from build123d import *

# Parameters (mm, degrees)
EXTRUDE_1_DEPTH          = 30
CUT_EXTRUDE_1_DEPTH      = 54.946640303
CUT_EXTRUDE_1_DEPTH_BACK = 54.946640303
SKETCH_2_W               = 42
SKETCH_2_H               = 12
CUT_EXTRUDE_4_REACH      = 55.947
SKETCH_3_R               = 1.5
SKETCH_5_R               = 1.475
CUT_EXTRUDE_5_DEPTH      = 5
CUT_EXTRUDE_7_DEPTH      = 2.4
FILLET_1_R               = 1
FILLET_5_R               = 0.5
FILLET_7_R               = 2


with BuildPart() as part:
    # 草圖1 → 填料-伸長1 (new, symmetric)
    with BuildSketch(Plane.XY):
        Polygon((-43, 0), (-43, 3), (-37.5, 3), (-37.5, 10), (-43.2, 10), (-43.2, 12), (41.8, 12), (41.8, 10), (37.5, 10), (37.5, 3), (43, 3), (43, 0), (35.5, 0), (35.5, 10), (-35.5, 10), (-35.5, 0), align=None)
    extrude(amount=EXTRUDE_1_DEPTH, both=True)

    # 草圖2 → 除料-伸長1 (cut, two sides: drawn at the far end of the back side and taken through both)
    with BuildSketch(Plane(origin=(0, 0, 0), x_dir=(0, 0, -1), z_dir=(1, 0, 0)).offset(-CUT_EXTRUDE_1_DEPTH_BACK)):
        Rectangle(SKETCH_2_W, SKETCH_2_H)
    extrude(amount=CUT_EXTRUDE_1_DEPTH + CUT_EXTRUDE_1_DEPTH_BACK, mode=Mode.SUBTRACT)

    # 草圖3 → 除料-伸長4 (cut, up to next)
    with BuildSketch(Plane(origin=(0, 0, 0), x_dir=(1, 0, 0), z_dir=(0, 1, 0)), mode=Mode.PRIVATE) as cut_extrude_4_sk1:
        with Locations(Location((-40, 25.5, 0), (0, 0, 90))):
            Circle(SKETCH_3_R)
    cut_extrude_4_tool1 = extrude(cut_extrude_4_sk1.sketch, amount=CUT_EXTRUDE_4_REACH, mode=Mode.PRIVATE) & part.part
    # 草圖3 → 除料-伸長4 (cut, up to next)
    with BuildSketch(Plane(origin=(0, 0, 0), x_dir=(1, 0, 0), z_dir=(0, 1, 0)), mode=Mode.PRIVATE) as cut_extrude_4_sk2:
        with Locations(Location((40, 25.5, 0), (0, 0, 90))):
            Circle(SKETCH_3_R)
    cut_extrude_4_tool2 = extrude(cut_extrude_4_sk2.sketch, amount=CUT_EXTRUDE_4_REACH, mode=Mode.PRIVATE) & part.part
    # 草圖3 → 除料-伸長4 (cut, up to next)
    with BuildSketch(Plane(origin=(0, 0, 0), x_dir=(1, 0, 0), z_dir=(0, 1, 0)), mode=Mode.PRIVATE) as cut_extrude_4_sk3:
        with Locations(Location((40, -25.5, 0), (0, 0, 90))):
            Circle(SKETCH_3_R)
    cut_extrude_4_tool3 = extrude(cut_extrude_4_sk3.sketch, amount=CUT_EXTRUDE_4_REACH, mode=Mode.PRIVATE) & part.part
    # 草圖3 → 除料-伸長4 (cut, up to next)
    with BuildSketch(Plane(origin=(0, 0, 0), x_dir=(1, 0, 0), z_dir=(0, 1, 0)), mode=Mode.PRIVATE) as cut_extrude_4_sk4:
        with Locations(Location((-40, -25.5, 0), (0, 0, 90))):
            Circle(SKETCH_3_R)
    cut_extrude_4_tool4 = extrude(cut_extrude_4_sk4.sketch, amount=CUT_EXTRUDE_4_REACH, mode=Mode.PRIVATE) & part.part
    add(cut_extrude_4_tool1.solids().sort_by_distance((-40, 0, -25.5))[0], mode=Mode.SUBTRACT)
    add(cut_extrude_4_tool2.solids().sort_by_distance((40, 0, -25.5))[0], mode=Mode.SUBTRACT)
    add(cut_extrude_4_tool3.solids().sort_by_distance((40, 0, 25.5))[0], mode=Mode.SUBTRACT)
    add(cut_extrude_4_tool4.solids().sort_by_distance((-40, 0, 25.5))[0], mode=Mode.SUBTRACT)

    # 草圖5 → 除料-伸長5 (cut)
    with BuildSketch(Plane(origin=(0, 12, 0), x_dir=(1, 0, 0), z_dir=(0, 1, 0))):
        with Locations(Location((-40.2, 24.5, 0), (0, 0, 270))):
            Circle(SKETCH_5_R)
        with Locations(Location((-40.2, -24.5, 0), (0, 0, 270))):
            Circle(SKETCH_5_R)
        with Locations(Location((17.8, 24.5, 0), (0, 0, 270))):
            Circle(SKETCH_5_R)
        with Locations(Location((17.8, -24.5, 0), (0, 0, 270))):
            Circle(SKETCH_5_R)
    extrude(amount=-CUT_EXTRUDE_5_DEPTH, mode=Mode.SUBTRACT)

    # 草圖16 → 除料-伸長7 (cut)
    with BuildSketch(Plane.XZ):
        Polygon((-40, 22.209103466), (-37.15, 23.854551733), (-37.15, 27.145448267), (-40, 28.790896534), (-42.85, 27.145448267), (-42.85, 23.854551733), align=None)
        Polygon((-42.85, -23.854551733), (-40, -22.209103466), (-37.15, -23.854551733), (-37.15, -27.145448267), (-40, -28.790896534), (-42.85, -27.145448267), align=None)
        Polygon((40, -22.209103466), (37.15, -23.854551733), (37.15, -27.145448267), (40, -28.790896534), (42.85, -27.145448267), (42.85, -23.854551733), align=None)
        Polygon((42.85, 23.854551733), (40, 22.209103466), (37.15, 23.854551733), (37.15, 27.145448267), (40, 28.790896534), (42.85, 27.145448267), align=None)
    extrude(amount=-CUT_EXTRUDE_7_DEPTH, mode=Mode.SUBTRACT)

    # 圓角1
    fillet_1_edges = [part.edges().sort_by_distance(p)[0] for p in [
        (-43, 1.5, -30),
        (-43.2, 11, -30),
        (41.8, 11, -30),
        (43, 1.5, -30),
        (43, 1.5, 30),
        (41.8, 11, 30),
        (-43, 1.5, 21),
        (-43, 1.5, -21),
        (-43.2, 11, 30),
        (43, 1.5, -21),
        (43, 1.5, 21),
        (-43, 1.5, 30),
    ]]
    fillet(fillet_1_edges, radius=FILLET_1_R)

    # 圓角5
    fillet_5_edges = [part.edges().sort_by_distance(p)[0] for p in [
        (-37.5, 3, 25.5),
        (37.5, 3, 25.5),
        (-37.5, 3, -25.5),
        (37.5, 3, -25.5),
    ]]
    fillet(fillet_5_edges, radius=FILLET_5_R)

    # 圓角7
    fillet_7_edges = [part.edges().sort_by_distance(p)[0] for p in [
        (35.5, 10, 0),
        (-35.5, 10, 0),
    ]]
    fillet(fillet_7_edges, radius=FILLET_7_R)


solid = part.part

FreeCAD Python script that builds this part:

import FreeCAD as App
import Part
import Sketcher

V = App.Vector
Q = App.Units.Quantity


def edges_at(feature, points):
    """Names of the edges that pass closest to the given points."""
    edges = feature.Shape.Edges
    near = lambda p: min(range(len(edges)), key=lambda i: edges[i].distToShape(Part.Vertex(*p))[0])
    return sorted({f"Edge{near(p) + 1}" for p in points})


def add_polygon(sketch, points):
    """Adds a closed chain of lines whose ends are joined by coincident constraints."""
    first, n = sketch.GeometryCount, len(points)
    for a, b in zip(points, points[1:] + points[:1]):
        sketch.addGeometry(Part.LineSegment(App.Vector(*a, 0), App.Vector(*b, 0)), False)
    for i in range(n):
        sketch.addConstraint(Sketcher.Constraint("Coincident", first + i, 2, first + (i + 1) % n, 1))

doc = App.newDocument("Part")
params = doc.addObject("Spreadsheet::Sheet", "Params")
for row, (alias, value) in enumerate([
    ("sketch1_width", "71 mm"),
    ("sketch1_width2", "85 mm"),
    ("sketch1_height", "3 mm"),
    ("sketch1_height2", "10 mm"),
    ("sketch1_height3", "2 mm"),
    ("pad1_length", "60 mm"),
    ("sketch2_width", "12 mm"),
    ("sketch2_height", "42 mm"),
    ("sketch3_diameter", "3 mm"),
    ("sketch4_diameter", "3 mm"),
    ("sketch5_diameter", "3 mm"),
    ("sketch6_diameter", "3 mm"),
    ("sketch7_diameter", "2.95 mm"),
    ("pocket6_length", "5 mm"),
    ("pocket7_length", "2.4 mm"),
    ("fillet_radius", "1 mm"),
    ("fillet2_radius", "0.5 mm"),
    ("fillet3_radius", "2 mm"),
], start=1):
    params.set(f"A{row}", alias)
    params.set(f"B{row}", "=" + value)
    params.setAlias(f"B{row}", alias)

body = doc.addObject("PartDesign::Body", "Body")

# Sketch on XY plane
sketch1 = body.newObject("Sketcher::SketchObject", "Sketch")
sketch1.AttachmentSupport = (doc.getObject("XY_Plane"), [""])
sketch1.MapMode = "FlatFace"
add_polygon(sketch1, [(-43, 3), (-43, 0), (-35.5, 0), (-35.5, 10), (35.5, 10), (35.5, 0), (43, 0), (43, 3), (37.5, 3), (37.5, 10), (41.8, 10), (41.8, 12), (-43.2, 12), (-43.2, 10), (-37.5, 10), (-37.5, 3)])  # lines 0-15
sketch1.addConstraint([
    Sketcher.Constraint("Vertical", 0),
    Sketcher.Constraint("Horizontal", 1),
    Sketcher.Constraint("Vertical", 2),
    Sketcher.Constraint("Horizontal", 3),
    Sketcher.Constraint("Vertical", 4),
    Sketcher.Constraint("Horizontal", 5),
    Sketcher.Constraint("Vertical", 6),
    Sketcher.Constraint("Horizontal", 7),
    Sketcher.Constraint("Vertical", 8),
    Sketcher.Constraint("Horizontal", 9),
    Sketcher.Constraint("Vertical", 10),
    Sketcher.Constraint("Horizontal", 11),
    Sketcher.Constraint("Vertical", 12),
    Sketcher.Constraint("Horizontal", 13),
    Sketcher.Constraint("Vertical", 14),
    Sketcher.Constraint("Horizontal", 15),
    Sketcher.Constraint("Symmetric", 1, 2, 4, 2, -1, 1),
    Sketcher.Constraint("Symmetric", 0, 2, 5, 2, -2),
    Sketcher.Constraint("Symmetric", 8, 2, 13, 2, -2),
    Sketcher.Constraint("Horizontal", 3, 2, 8, 2),
    Sketcher.Constraint("Horizontal", 7, 2, 14, 2),
    Sketcher.Constraint("DistanceX", 3, 1, 3, 2, Q("71 mm")),
    Sketcher.Constraint("DistanceX", 11, 2, 11, 1, Q("85 mm")),
    Sketcher.Constraint("DistanceY", 0, 2, 0, 1, Q("3 mm")),
    Sketcher.Constraint("DistanceY", 2, 1, 2, 2, Q("10 mm")),
    Sketcher.Constraint("DistanceY", 10, 1, 10, 2, Q("2 mm")),
    Sketcher.Constraint("DistanceX", 1, 1, 1, 2, Q("7.5 mm")),
    Sketcher.Constraint("DistanceX", 7, 2, 7, 1, Q("5.5 mm")),
    Sketcher.Constraint("DistanceX", 9, 1, 9, 2, Q("4.3 mm")),
])
sketch1.setExpression("Constraints[37]", "Params.sketch1_width")
sketch1.setExpression("Constraints[38]", "Params.sketch1_width2")
sketch1.setExpression("Constraints[39]", "Params.sketch1_height")
sketch1.setExpression("Constraints[40]", "Params.sketch1_height2")
sketch1.setExpression("Constraints[41]", "Params.sketch1_height3")
pad1 = body.newObject("PartDesign::Pad", "Pad")
pad1.Profile = sketch1
pad1.setExpression("Length", "Params.pad1_length")
pad1.Midplane = True

# Sketch on YZ plane
sketch2 = body.newObject("Sketcher::SketchObject", "Sketch001")
sketch2.AttachmentSupport = (doc.getObject("YZ_Plane"), [""])
sketch2.MapMode = "FlatFace"
add_polygon(sketch2, [(6, 21), (-6, 21), (-6, -21), (6, -21)])  # lines 0-3
sketch2.addConstraint([
    Sketcher.Constraint("Horizontal", 0),
    Sketcher.Constraint("Vertical", 1),
    Sketcher.Constraint("Horizontal", 2),
    Sketcher.Constraint("Vertical", 3),
    Sketcher.Constraint("Symmetric", 0, 2, 2, 2, -1, 1),
    Sketcher.Constraint("DistanceX", 0, 2, 0, 1, Q("12 mm")),
    Sketcher.Constraint("DistanceY", 1, 2, 1, 1, Q("42 mm")),
])
sketch2.setExpression("Constraints[9]", "Params.sketch2_width")
sketch2.setExpression("Constraints[10]", "Params.sketch2_height")
pocket1 = body.newObject("PartDesign::Pocket", "Pocket")
pocket1.Profile = sketch2
pocket1.Type = "ThroughAll"
pocket1.Midplane = True

# Sketch on XZ plane
sketch3 = body.newObject("Sketcher::SketchObject", "Sketch002")
sketch3.AttachmentSupport = (doc.getObject("XZ_Plane"), [""])
sketch3.MapMode = "FlatFace"
sketch3.addGeometry(Part.Circle(V(-40, -25.5, 0), V(0, 0, 1), 1.5), False)
sketch3.addConstraint([
    Sketcher.Constraint("Diameter", 0, Q("3 mm")),
    Sketcher.Constraint("DistanceX", 0, 3, -1, 1, Q("40 mm")),
    Sketcher.Constraint("DistanceY", 0, 3, -1, 1, Q("25.5 mm")),
])
sketch3.setExpression("Constraints[0]", "Params.sketch3_diameter")
pocket2 = body.newObject("PartDesign::Pocket", "Pocket001")
pocket2.Profile = sketch3
pocket2.Type = "UpToFirst"

# Sketch on XZ plane
sketch4 = body.newObject("Sketcher::SketchObject", "Sketch003")
sketch4.AttachmentSupport = (doc.getObject("XZ_Plane"), [""])
sketch4.MapMode = "FlatFace"
sketch4.addGeometry(Part.Circle(V(40, -25.5, 0), V(0, 0, 1), 1.5), False)
sketch4.addConstraint([
    Sketcher.Constraint("Diameter", 0, Q("3 mm")),
    Sketcher.Constraint("DistanceX", -1, 1, 0, 3, Q("40 mm")),
    Sketcher.Constraint("DistanceY", 0, 3, -1, 1, Q("25.5 mm")),
])
sketch4.setExpression("Constraints[0]", "Params.sketch4_diameter")
pocket3 = body.newObject("PartDesign::Pocket", "Pocket002")
pocket3.Profile = sketch4
pocket3.Type = "UpToFirst"

# Sketch on XZ plane
sketch5 = body.newObject("Sketcher::SketchObject", "Sketch004")
sketch5.AttachmentSupport = (doc.getObject("XZ_Plane"), [""])
sketch5.MapMode = "FlatFace"
sketch5.addGeometry(Part.Circle(V(40, 25.5, 0), V(0, 0, 1), 1.5), False)
sketch5.addConstraint([
    Sketcher.Constraint("Diameter", 0, Q("3 mm")),
    Sketcher.Constraint("DistanceX", -1, 1, 0, 3, Q("40 mm")),
    Sketcher.Constraint("DistanceY", -1, 1, 0, 3, Q("25.5 mm")),
])
sketch5.setExpression("Constraints[0]", "Params.sketch5_diameter")
pocket4 = body.newObject("PartDesign::Pocket", "Pocket003")
pocket4.Profile = sketch5
pocket4.Type = "UpToFirst"

# Sketch on XZ plane
sketch6 = body.newObject("Sketcher::SketchObject", "Sketch005")
sketch6.AttachmentSupport = (doc.getObject("XZ_Plane"), [""])
sketch6.MapMode = "FlatFace"
sketch6.addGeometry(Part.Circle(V(-40, 25.5, 0), V(0, 0, 1), 1.5), False)
sketch6.addConstraint([
    Sketcher.Constraint("Diameter", 0, Q("3 mm")),
    Sketcher.Constraint("DistanceX", 0, 3, -1, 1, Q("40 mm")),
    Sketcher.Constraint("DistanceY", -1, 1, 0, 3, Q("25.5 mm")),
])
sketch6.setExpression("Constraints[0]", "Params.sketch6_diameter")
pocket5 = body.newObject("PartDesign::Pocket", "Pocket004")
pocket5.Profile = sketch6
pocket5.Type = "UpToFirst"

# Sketch on XZ plane
sketch7 = body.newObject("Sketcher::SketchObject", "Sketch006")
sketch7.AttachmentSupport = (doc.getObject("XZ_Plane"), [""])
sketch7.MapMode = "FlatFace"
sketch7.AttachmentOffset = App.Placement(V(0, 0, -12), App.Rotation())
sketch7.addGeometry([
    Part.Circle(V(-40.2, -24.5, 0), V(0, 0, 1), 1.475),
    Part.Circle(V(-40.2, 24.5, 0), V(0, 0, 1), 1.475),
    Part.Circle(V(17.8, -24.5, 0), V(0, 0, 1), 1.475),
    Part.Circle(V(17.8, 24.5, 0), V(0, 0, 1), 1.475),
], False)
sketch7.addConstraint([
    Sketcher.Constraint("Equal", 0, 1),
    Sketcher.Constraint("Equal", 1, 2),
    Sketcher.Constraint("Equal", 2, 3),
    Sketcher.Constraint("Symmetric", 0, 3, 1, 3, -1),
    Sketcher.Constraint("Symmetric", 2, 3, 3, 3, -1),
    Sketcher.Constraint("Horizontal", 0, 3, 2, 3),
    Sketcher.Constraint("Diameter", 0, Q("2.95 mm")),
    Sketcher.Constraint("DistanceY", 0, 3, 1, 3, Q("49 mm")),
    Sketcher.Constraint("DistanceX", 0, 3, 2, 3, Q("58 mm")),
    Sketcher.Constraint("DistanceX", 0, 3, -1, 1, Q("40.2 mm")),
])
sketch7.setExpression("Constraints[6]", "Params.sketch7_diameter")
pocket6 = body.newObject("PartDesign::Pocket", "Pocket005")
pocket6.Profile = sketch7
pocket6.setExpression("Length", "Params.pocket6_length")
pocket6.Reversed = True

# Sketch on XZ plane
sketch8 = body.newObject("Sketcher::SketchObject", "Sketch007")
sketch8.AttachmentSupport = (doc.getObject("XZ_Plane"), [""])
sketch8.MapMode = "FlatFace"
add_polygon(sketch8, [(-40, 22.209103), (-37.15, 23.854552), (-37.15, 27.145448), (-40, 28.790897), (-42.85, 27.145448), (-42.85, 23.854552)])  # lines 0-5
add_polygon(sketch8, [(-40, -22.209103), (-42.85, -23.854552), (-42.85, -27.145448), (-40, -28.790897), (-37.15, -27.145448), (-37.15, -23.854552)])  # lines 6-11
add_polygon(sketch8, [(40, -22.209103), (37.15, -23.854552), (37.15, -27.145448), (40, -28.790897), (42.85, -27.145448), (42.85, -23.854552)])  # lines 12-17
add_polygon(sketch8, [(40, 22.209103), (42.85, 23.854552), (42.85, 27.145448), (40, 28.790897), (37.15, 27.145448), (37.15, 23.854552)])  # lines 18-23
sketch8.addConstraint([
    Sketcher.Constraint("Vertical", 1),
    Sketcher.Constraint("Vertical", 4),
    Sketcher.Constraint("Vertical", 7),
    Sketcher.Constraint("Vertical", 10),
    Sketcher.Constraint("Vertical", 13),
    Sketcher.Constraint("Vertical", 16),
    Sketcher.Constraint("Vertical", 19),
    Sketcher.Constraint("Vertical", 22),
    Sketcher.Constraint("Symmetric", 0, 2, 12, 2, -1, 1),
    Sketcher.Constraint("Symmetric", 2, 2, 14, 2, -1, 1),
    Sketcher.Constraint("Symmetric", 3, 2, 15, 2, -1, 1),
    Sketcher.Constraint("Symmetric", 5, 2, 17, 2, -1, 1),
    Sketcher.Constraint("Symmetric", 6, 2, 18, 2, -1, 1),
    Sketcher.Constraint("Symmetric", 8, 2, 20, 2, -1, 1),
    Sketcher.Constraint("Symmetric", 9, 2, 21, 2, -1, 1),
    Sketcher.Constraint("Symmetric", 11, 2, 23, 2, -1, 1),
    Sketcher.Constraint("Symmetric", 10, 2, 12, 2, -2),
    Sketcher.Constraint("Symmetric", 8, 2, 14, 2, -2),
    Sketcher.Constraint("Symmetric", 7, 2, 15, 2, -2),
    Sketcher.Constraint("Symmetric", 11, 2, 17, 2, -2),
    Sketcher.Constraint("Parallel", 0, 3),
    Sketcher.Constraint("Parallel", 2, 5),
    Sketcher.Constraint("Parallel", 3, 6),
    Sketcher.Constraint("Parallel", 5, 8),
    Sketcher.Constraint("Parallel", 6, 9),
    Sketcher.Constraint("Parallel", 11, 14),
    Sketcher.Constraint("Parallel", 14, 17),
    Sketcher.Constraint("Parallel", 17, 20),
    Sketcher.Constraint("Parallel", 20, 23),
    Sketcher.Constraint("Horizontal", 1, 2, 3, 2),
    Sketcher.Constraint("Horizontal", 0, 2, 4, 2),
    Sketcher.Constraint("Angle", 0, Q("30 deg")),
    Sketcher.Constraint("DistanceX", 2, 2, -1, 1, Q("40 mm")),
    Sketcher.Constraint("DistanceY", 6, 2, 3, 2, Q("51 mm")),
    Sketcher.Constraint("DistanceX", 3, 2, 1, 2, Q("5.7 mm")),
    Sketcher.Constraint("DistanceY", 1, 1, 1, 2, Q("3.290897 mm")),
])
pocket7 = body.newObject("PartDesign::Pocket", "Pocket006")
pocket7.Profile = sketch8
pocket7.setExpression("Length", "Params.pocket7_length")
doc.recompute()

fillet = body.newObject("PartDesign::Fillet", "Fillet")
fillet.Base = (pocket7, edges_at(pocket7, [
    (-43, 1.5, -30),
    (-43.2, 11, -30),
    (41.8, 11, -30),
    (43, 1.5, -30),
    (43, 1.5, 30),
    (41.8, 11, 30),
    (-43, 1.5, 21),
    (-43, 1.5, -21),
    (-43.2, 11, 30),
    (43, 1.5, -21),
    (43, 1.5, 21),
    (-43, 1.5, 30),
]))
fillet.setExpression("Radius", "Params.fillet_radius")
doc.recompute()

fillet2 = body.newObject("PartDesign::Fillet", "Fillet001")
fillet2.Base = (fillet, edges_at(fillet, [
    (-37.5, 3, 25.5),
    (37.5, 3, 25.5),
    (-37.5, 3, -25.5),
    (37.5, 3, -25.5),
]))
fillet2.setExpression("Radius", "Params.fillet2_radius")
doc.recompute()

fillet3 = body.newObject("PartDesign::Fillet", "Fillet002")
fillet3.Base = (fillet2, edges_at(fillet2, [(35.5, 10, 0), (-35.5, 10, 0)]))
fillet3.setExpression("Radius", "Params.fillet3_radius")

doc.recompute()
